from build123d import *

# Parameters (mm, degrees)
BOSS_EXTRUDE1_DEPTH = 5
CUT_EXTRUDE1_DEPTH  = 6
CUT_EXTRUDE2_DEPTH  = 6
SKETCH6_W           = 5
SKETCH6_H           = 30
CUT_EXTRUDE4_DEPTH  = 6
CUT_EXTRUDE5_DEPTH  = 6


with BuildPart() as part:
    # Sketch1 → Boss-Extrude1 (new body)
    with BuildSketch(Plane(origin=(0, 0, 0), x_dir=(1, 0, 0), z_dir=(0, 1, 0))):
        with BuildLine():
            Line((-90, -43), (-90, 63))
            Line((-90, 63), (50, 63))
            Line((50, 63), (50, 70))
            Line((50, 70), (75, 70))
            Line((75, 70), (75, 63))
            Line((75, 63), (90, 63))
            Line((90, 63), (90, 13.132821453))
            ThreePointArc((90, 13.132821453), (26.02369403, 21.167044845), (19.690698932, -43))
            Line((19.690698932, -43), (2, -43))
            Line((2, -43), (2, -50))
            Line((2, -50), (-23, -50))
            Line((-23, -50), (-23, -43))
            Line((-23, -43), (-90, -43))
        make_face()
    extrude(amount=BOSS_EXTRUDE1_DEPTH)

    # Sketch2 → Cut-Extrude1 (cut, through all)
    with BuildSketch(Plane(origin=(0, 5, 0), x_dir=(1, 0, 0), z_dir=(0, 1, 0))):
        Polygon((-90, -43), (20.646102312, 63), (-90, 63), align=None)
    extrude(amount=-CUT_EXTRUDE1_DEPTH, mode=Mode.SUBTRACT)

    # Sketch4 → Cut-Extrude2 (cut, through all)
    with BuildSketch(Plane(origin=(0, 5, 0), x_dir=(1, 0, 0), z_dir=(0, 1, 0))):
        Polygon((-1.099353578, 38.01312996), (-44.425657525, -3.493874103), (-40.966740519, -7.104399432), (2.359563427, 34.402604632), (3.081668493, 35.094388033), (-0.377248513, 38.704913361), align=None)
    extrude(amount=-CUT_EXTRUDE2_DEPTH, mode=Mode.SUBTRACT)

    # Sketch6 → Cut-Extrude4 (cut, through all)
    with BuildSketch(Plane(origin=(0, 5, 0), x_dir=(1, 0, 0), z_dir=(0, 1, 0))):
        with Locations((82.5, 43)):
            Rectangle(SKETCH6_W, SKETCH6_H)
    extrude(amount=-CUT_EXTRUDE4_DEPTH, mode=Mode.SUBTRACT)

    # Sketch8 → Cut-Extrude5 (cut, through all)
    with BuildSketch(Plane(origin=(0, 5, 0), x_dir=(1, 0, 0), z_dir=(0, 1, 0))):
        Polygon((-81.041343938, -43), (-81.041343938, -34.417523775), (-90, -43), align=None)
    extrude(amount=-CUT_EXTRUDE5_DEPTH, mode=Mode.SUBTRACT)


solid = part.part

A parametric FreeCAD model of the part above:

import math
import FreeCAD as App
import Part
import Sketcher

V = App.Vector

doc = App.newDocument("Part")
body = doc.addObject("PartDesign::Body", "Body")

# Sketch on XZ plane
sketch1 = doc.addObject("Sketcher::SketchObject", "Sketch")
body.addObject(sketch1)
sketch1.AttachmentSupport = (doc.XZ_Plane, [""])
sketch1.MapMode = "FlatFace"
sketch1.addGeometry(Part.LineSegment(V(-90, -63, 0), V(-90, 43, 0)), False)
sketch1.addGeometry(Part.LineSegment(V(-90, 43, 0), V(-23, 43, 0)), False)
sketch1.addGeometry(Part.LineSegment(V(-23, 43, 0), V(-23, 50, 0)), False)
sketch1.addGeometry(Part.LineSegment(V(-23, 50, 0), V(2, 50, 0)), False)
sketch1.addGeometry(Part.LineSegment(V(2, 50, 0), V(2, 43, 0)), False)
sketch1.addGeometry(Part.LineSegment(V(2, 43, 0), V(19.690699, 43, 0)), False)
sketch1.addGeometry(Part.ArcOfCircle(Part.Circle(V(54.1, 14, 0), V(0, 0, 1), 45), math.radians(139.875965), math.radians(322.918417)), False)
sketch1.addGeometry(Part.LineSegment(V(90, -13.132821, 0), V(90, -63, 0)), False)
sketch1.addGeometry(Part.LineSegment(V(90, -63, 0), V(75, -63, 0)), False)
sketch1.addGeometry(Part.LineSegment(V(75, -63, 0), V(75, -70, 0)), False)
sketch1.addGeometry(Part.LineSegment(V(75, -70, 0), V(50, -70, 0)), False)
sketch1.addGeometry(Part.LineSegment(V(50, -70, 0), V(50, -63, 0)), False)
sketch1.addGeometry(Part.LineSegment(V(50, -63, 0), V(-90, -63, 0)), False)
sketch1.addConstraint(Sketcher.Constraint("Coincident", 0, 2, 1, 1))
sketch1.addConstraint(Sketcher.Constraint("Coincident", 1, 2, 2, 1))
sketch1.addConstraint(Sketcher.Constraint("Coincident", 2, 2, 3, 1))
sketch1.addConstraint(Sketcher.Constraint("Coincident", 3, 2, 4, 1))
sketch1.addConstraint(Sketcher.Constraint("Coincident", 4, 2, 5, 1))
sketch1.addConstraint(Sketcher.Constraint("Coincident", 5, 2, 6, 1))
sketch1.addConstraint(Sketcher.Constraint("Coincident", 6, 2, 7, 1))
sketch1.addConstraint(Sketcher.Constraint("Coincident", 7, 2, 8, 1))
sketch1.addConstraint(Sketcher.Constraint("Coincident", 8, 2, 9, 1))
sketch1.addConstraint(Sketcher.Constraint("Coincident", 9, 2, 10, 1))
sketch1.addConstraint(Sketcher.Constraint("Coincident", 10, 2, 11, 1))
sketch1.addConstraint(Sketcher.Constraint("Coincident", 11, 2, 12, 1))
sketch1.addConstraint(Sketcher.Constraint("Coincident", 12, 2, 0, 1))
sketch1.addConstraint(Sketcher.Constraint("Vertical", 0))
sketch1.addConstraint(Sketcher.Constraint("Horizontal", 1))
sketch1.addConstraint(Sketcher.Constraint("Vertical", 2))
sketch1.addConstraint(Sketcher.Constraint("Horizontal", 3))
sketch1.addConstraint(Sketcher.Constraint("Vertical", 4))
sketch1.addConstraint(Sketcher.Constraint("Horizontal", 5))
sketch1.addConstraint(Sketcher.Constraint("Vertical", 7))
sketch1.addConstraint(Sketcher.Constraint("Horizontal", 8))
sketch1.addConstraint(Sketcher.Constraint("Vertical", 9))
sketch1.addConstraint(Sketcher.Constraint("Horizontal", 10))
sketch1.addConstraint(Sketcher.Constraint("Vertical", 11))
sketch1.addConstraint(Sketcher.Constraint("Horizontal", 12))
sketch1.addConstraint(Sketcher.Constraint("Symmetric", 7, 2, 12, 2, -2))
sketch1.addConstraint(Sketcher.Constraint("Horizontal", 1, 2, 4, 2))
sketch1.addConstraint(Sketcher.Constraint("Equal", 3, 10))
sketch1.addConstraint(Sketcher.Constraint("Equal", 4, 9))
sketch1.addConstraint(Sketcher.Constraint("Radius", 6, 45.0))
sketch1.addConstraint(Sketcher.Constraint("DistanceX", 1, 1, 1, 2, 67.0))
sketch1.addConstraint(Sketcher.Constraint("DistanceX", 3, 1, 3, 2, 25.0))
sketch1.addConstraint(Sketcher.Constraint("DistanceX", 8, 2, 8, 1, 15.0))
sketch1.addConstraint(Sketcher.Constraint("DistanceX", 12, 2, 12, 1, 140.0))
sketch1.addConstraint(Sketcher.Constraint("DistanceY", 0, 1, 0, 2, 106.0))
sketch1.addConstraint(Sketcher.Constraint("DistanceY", 2, 1, 2, 2, 7.0))
sketch1.addConstraint(Sketcher.Constraint("DistanceY", -1, 1, 6, 3, 14.0))
sketch1.addConstraint(Sketcher.Constraint("DistanceY", -1, 1, 0, 2, 43.0))
sketch1.addConstraint(Sketcher.Constraint("DistanceX", -1, 1, 6, 3, 54.1))
pad1 = doc.addObject("PartDesign::Pad", "Pad")
body.addObject(pad1)
pad1.Profile = sketch1
pad1.Length = 5
pad1.Reversed = True

# Sketch on XZ plane
sketch2 = doc.addObject("Sketcher::SketchObject", "Sketch001")
body.addObject(sketch2)
sketch2.AttachmentSupport = (doc.XZ_Plane, [""])
sketch2.MapMode = "FlatFace"
sketch2.AttachmentOffset = App.Placement(V(0, 0, -5), App.Rotation())
sketch2.addGeometry(Part.LineSegment(V(-90, 43, 0), V(20.646102, -63, 0)), False)
sketch2.addGeometry(Part.LineSegment(V(20.646102, -63, 0), V(-90, -63, 0)), False)
sketch2.addGeometry(Part.LineSegment(V(-90, -63, 0), V(-90, 43, 0)), False)
sketch2.addConstraint(Sketcher.Constraint("Coincident", 0, 2, 1, 1))
sketch2.addConstraint(Sketcher.Constraint("Coincident", 1, 2, 2, 1))
sketch2.addConstraint(Sketcher.Constraint("Coincident", 2, 2, 0, 1))
sketch2.addConstraint(Sketcher.Constraint("Horizontal", 1))
sketch2.addConstraint(Sketcher.Constraint("Vertical", 2))
sketch2.addConstraint(Sketcher.Constraint("DistanceY", 2, 1, 2, 2, 106.0))
sketch2.addConstraint(Sketcher.Constraint("DistanceY", 0, 2, -1, 1, 63.0))
sketch2.addConstraint(Sketcher.Constraint("DistanceX", 1, 2, -1, 1, 90.0))
sketch2.addConstraint(Sketcher.Constraint("Distance", 0, 153.227152))
pocket1 = doc.addObject("PartDesign::Pocket", "Pocket")
body.addObject(pocket1)
pocket1.Profile = sketch2
pocket1.Type = "ThroughAll"
pocket1.Reversed = True

# Sketch on XZ plane
sketch3 = doc.addObject("Sketcher::SketchObject", "Sketch002")
body.addObject(sketch3)
sketch3.AttachmentSupport = (doc.XZ_Plane, [""])
sketch3.MapMode = "FlatFace"
sketch3.AttachmentOffset = App.Placement(V(0, 0, -5), App.Rotation())
sketch3.addGeometry(Part.LineSegment(V(-1.099354, -38.01313, 0), V(-44.425658, 3.493874, 0)), False)
sketch3.addGeometry(Part.LineSegment(V(-44.425658, 3.493874, 0), V(-40.966741, 7.104399, 0)), False)
sketch3.addGeometry(Part.LineSegment(V(-40.966741, 7.104399, 0), V(2.359563, -34.402605, 0)), False)
sketch3.addGeometry(Part.LineSegment(V(2.359563, -34.402605, 0), V(3.081668, -35.094388, 0)), False)
sketch3.addGeometry(Part.LineSegment(V(3.081668, -35.094388, 0), V(-0.377249, -38.704913, 0)), False)
sketch3.addGeometry(Part.LineSegment(V(-0.377249, -38.704913, 0), V(-1.099354, -38.01313, 0)), False)
sketch3.addConstraint(Sketcher.Constraint("Coincident", 0, 2, 1, 1))
sketch3.addConstraint(Sketcher.Constraint("Coincident", 1, 2, 2, 1))
sketch3.addConstraint(Sketcher.Constraint("Coincident", 2, 2, 3, 1))
sketch3.addConstraint(Sketcher.Constraint("Coincident", 3, 2, 4, 1))
sketch3.addConstraint(Sketcher.Constraint("Coincident", 4, 2, 5, 1))
sketch3.addConstraint(Sketcher.Constraint("Coincident", 5, 2, 0, 1))
sketch3.addConstraint(Sketcher.Constraint("Perpendicular", 0, 1))
sketch3.addConstraint(Sketcher.Constraint("Perpendicular", 1, 2))
sketch3.addConstraint(Sketcher.Constraint("Parallel", 2, 3))
sketch3.addConstraint(Sketcher.Constraint("Perpendicular", 3, 4))
sketch3.addConstraint(Sketcher.Constraint("Perpendicular", 4, 5))
sketch3.addConstraint(Sketcher.Constraint("Equal", 0, 2))
sketch3.addConstraint(Sketcher.Constraint("Distance", 0, 60.0))
sketch3.addConstraint(Sketcher.Constraint("Distance", 1, 5.0))
sketch3.addConstraint(Sketcher.Constraint("Distance", 3, 1.0))
sketch3.addConstraint(Sketcher.Constraint("DistanceY", -1, 1, 1, 2, 7.104399))
sketch3.addConstraint(Sketcher.Constraint("DistanceX", 1, 2, -1, 1, 40.966741))
sketch3.addConstraint(Sketcher.Constraint("DistanceX", -1, 1, 3, 2, 3.081668))
pocket2 = doc.addObject("PartDesign::Pocket", "Pocket001")
body.addObject(pocket2)
pocket2.Profile = sketch3
pocket2.Type = "ThroughAll"
pocket2.Reversed = True

# Sketch on XZ plane
sketch4 = doc.addObject("Sketcher::SketchObject", "Sketch003")
body.addObject(sketch4)
sketch4.AttachmentSupport = (doc.XZ_Plane, [""])
sketch4.MapMode = "FlatFace"
sketch4.AttachmentOffset = App.Placement(V(0, 0, -5), App.Rotation())
sketch4.addGeometry(Part.LineSegment(V(80, -58, 0), V(80, -28, 0)), False)
sketch4.addGeometry(Part.LineSegment(V(80, -28, 0), V(85, -28, 0)), False)
sketch4.addGeometry(Part.LineSegment(V(85, -28, 0), V(85, -58, 0)), False)
sketch4.addGeometry(Part.LineSegment(V(85, -58, 0), V(80, -58, 0)), False)
sketch4.addConstraint(Sketcher.Constraint("Coincident", 0, 2, 1, 1))
sketch4.addConstraint(Sketcher.Constraint("Coincident", 1, 2, 2, 1))
sketch4.addConstraint(Sketcher.Constraint("Coincident", 2, 2, 3, 1))
sketch4.addConstraint(Sketcher.Constraint("Coincident", 3, 2, 0, 1))
sketch4.addConstraint(Sketcher.Constraint("Vertical", 0))
sketch4.addConstraint(Sketcher.Constraint("Horizontal", 1))
sketch4.addConstraint(Sketcher.Constraint("Vertical", 2))
sketch4.addConstraint(Sketcher.Constraint("Horizontal", 3))
sketch4.addConstraint(Sketcher.Constraint("DistanceX", 1, 1, 1, 2, 5.0))
sketch4.addConstraint(Sketcher.Constraint("DistanceY", 0, 1, 0, 2, 30.0))
sketch4.addConstraint(Sketcher.Constraint("DistanceX", -1, 1, 0, 2, 80.0))
sketch4.addConstraint(Sketcher.Constraint("DistanceY", 0, 2, -1, 1, 28.0))
pocket3 = doc.addObject("PartDesign::Pocket", "Pocket002")
body.addObject(pocket3)
pocket3.Profile = sketch4
pocket3.Type = "ThroughAll"
pocket3.Reversed = True

# Sketch on XZ plane
sketch5 = doc.addObject("Sketcher::SketchObject", "Sketch004")
body.addObject(sketch5)
sketch5.AttachmentSupport = (doc.XZ_Plane, [""])
sketch5.MapMode = "FlatFace"
sketch5.AttachmentOffset = App.Placement(V(0, 0, -5), App.Rotation())
sketch5.addGeometry(Part.LineSegment(V(-81.041344, 43, 0), V(-81.041344, 34.417524, 0)), False)
sketch5.addGeometry(Part.LineSegment(V(-81.041344, 34.417524, 0), V(-90, 43, 0)), False)
sketch5.addGeometry(Part.LineSegment(V(-90, 43, 0), V(-81.041344, 43, 0)), False)
sketch5.addConstraint(Sketcher.Constraint("Coincident", 0, 2, 1, 1))
sketch5.addConstraint(Sketcher.Constraint("Coincident", 1, 2, 2, 1))
sketch5.addConstraint(Sketcher.Constraint("Coincident", 2, 2, 0, 1))
sketch5.addConstraint(Sketcher.Constraint("Vertical", 0))
sketch5.addConstraint(Sketcher.Constraint("Horizontal", 2))
sketch5.addConstraint(Sketcher.Constraint("DistanceX", 1, 2, -1, 1, 90.0))
sketch5.addConstraint(Sketcher.Constraint("DistanceY", -1, 1, 1, 2, 43.0))
sketch5.addConstraint(Sketcher.Constraint("DistanceX", 2, 1, 2, 2, 8.958656))
sketch5.addConstraint(Sketcher.Constraint("DistanceY", 0, 2, 0, 1, 8.582476))
pocket4 = doc.addObject("PartDesign::Pocket", "Pocket003")
body.addObject(pocket4)
pocket4.Profile = sketch5
pocket4.Type = "ThroughAll"
pocket4.Reversed = True

doc.recompute()
